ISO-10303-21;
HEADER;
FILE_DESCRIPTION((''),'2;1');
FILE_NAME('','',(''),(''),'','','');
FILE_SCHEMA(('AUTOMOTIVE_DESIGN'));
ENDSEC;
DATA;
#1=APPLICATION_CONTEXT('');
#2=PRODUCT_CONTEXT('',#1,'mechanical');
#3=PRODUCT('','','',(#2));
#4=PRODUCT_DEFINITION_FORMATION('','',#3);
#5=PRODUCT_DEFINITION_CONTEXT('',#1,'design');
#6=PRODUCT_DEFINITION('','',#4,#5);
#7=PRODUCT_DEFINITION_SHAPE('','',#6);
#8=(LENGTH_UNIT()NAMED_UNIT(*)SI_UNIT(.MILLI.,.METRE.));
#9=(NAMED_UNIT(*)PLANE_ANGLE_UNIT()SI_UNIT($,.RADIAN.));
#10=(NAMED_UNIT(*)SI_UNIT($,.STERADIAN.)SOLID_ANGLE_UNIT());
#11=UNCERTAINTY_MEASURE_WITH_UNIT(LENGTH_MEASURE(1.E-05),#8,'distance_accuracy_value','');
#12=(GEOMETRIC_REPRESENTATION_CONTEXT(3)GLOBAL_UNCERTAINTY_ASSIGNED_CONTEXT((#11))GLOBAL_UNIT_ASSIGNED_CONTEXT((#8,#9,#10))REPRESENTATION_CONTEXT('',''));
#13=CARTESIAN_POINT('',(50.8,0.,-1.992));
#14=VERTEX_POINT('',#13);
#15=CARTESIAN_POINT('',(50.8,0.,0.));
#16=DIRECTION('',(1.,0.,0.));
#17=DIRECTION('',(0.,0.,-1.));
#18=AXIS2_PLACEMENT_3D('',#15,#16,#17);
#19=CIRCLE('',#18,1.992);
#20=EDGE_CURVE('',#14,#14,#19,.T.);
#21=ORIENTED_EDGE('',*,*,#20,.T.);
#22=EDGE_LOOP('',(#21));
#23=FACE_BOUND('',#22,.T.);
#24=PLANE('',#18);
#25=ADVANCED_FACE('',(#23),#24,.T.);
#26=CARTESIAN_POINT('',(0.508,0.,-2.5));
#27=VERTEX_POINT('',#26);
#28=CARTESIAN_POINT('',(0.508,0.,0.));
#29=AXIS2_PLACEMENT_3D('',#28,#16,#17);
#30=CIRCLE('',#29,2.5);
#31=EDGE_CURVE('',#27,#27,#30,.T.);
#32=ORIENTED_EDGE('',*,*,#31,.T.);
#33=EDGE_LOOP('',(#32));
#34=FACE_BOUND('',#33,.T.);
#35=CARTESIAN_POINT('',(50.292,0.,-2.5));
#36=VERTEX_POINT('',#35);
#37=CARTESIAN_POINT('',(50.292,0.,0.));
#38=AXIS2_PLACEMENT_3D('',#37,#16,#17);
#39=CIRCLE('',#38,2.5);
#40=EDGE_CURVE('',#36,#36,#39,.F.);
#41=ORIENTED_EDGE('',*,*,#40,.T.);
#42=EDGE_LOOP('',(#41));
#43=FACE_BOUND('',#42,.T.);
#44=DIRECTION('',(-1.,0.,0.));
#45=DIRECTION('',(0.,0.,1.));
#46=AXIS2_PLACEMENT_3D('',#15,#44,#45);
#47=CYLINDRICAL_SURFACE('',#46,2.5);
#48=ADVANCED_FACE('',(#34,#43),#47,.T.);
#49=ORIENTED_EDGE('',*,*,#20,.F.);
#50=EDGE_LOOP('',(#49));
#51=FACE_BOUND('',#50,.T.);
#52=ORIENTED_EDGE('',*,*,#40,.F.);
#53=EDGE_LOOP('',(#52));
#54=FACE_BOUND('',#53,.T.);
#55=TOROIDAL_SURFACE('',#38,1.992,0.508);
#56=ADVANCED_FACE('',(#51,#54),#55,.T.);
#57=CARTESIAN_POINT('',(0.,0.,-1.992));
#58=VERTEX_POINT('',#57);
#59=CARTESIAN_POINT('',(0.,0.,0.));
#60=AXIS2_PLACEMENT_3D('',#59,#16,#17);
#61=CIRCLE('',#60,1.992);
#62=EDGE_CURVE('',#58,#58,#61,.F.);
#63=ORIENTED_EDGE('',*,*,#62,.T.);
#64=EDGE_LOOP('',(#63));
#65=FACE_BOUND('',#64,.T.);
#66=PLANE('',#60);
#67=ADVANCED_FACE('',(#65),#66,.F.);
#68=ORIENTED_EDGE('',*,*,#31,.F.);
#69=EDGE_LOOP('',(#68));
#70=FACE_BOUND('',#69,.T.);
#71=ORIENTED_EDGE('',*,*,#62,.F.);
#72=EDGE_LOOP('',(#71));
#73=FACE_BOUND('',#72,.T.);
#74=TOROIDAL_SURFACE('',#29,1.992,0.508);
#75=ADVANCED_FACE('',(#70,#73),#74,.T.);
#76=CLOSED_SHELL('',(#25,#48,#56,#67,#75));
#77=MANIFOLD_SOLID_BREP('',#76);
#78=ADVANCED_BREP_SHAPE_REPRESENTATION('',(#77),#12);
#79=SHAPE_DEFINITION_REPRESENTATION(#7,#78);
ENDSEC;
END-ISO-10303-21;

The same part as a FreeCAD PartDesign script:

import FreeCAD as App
import Part
import Sketcher

V = App.Vector


def edges_at(feature, points):
    """Names of the edges that pass closest to the given points."""
    edges = feature.Shape.Edges
    near = lambda p: min(range(len(edges)), key=lambda i: edges[i].distToShape(Part.Vertex(*p))[0])
    return sorted({f"Edge{near(p) + 1}" for p in points})

doc = App.newDocument("Part")
params = doc.addObject("Spreadsheet::Sheet", "Params")
for row, (alias, value) in enumerate([
    ("pad1_length", "2 in"),
    ("fillet_radius", "0.02 in"),
], start=1):
    params.set(f"A{row}", alias)
    params.set(f"B{row}", "=" + value)
    params.setAlias(f"B{row}", alias)

body = doc.addObject("PartDesign::Body", "Body")

# Sketch on YZ plane
sketch1 = body.newObject("Sketcher::SketchObject", "Sketch")
sketch1.AttachmentSupport = (doc.getObject("YZ_Plane"), [""])
sketch1.MapMode = "FlatFace"
sketch1.addGeometry(Part.Circle(V(0, 0, 0), V(0, 0, 1), 2.5), False)
sketch1.addConstraint([
    Sketcher.Constraint("Coincident", 0, 3, -1, 1),
    Sketcher.Constraint("Diameter", 0, 5.0),
])
pad1 = body.newObject("PartDesign::Pad", "Pad")
pad1.Profile = sketch1
pad1.setExpression("Length", "Params.pad1_length")
doc.recompute()

fillet = body.newObject("PartDesign::Fillet", "Fillet")
fillet.Base = (pad1, edges_at(pad1, [(0, 0, 2.5), (50.8, 0, 2.5)]))
fillet.setExpression("Radius", "Params.fillet_radius")

doc.recompute()
